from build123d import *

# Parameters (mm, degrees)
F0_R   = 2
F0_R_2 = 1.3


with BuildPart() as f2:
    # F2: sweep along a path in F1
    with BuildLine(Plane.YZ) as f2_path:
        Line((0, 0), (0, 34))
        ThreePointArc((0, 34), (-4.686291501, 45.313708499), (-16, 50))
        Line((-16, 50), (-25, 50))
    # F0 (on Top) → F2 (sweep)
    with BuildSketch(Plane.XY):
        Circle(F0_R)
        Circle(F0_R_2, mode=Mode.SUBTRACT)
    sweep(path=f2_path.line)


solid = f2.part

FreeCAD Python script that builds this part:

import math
import FreeCAD as App
import Part
import Sketcher

V = App.Vector

doc = App.newDocument("Part")
params = doc.addObject("Spreadsheet::Sheet", "Params")
for row, (alias, value) in enumerate([
    ("sketch1_diameter", "4 mm"),
    ("sketch1_diameter2", "2.6 mm"),
    ("sketch2_radius", "16 mm"),
    ("sketch2_width", "9 mm"),
    ("sketch2_height", "34 mm"),
], start=1):
    params.set(f"A{row}", alias)
    params.set(f"B{row}", "=" + value)
    params.setAlias(f"B{row}", alias)

body = doc.addObject("PartDesign::Body", "Body")

# Sketch on XY plane
sketch1 = body.newObject("Sketcher::SketchObject", "Sketch")
sketch1.AttachmentSupport = (doc.getObject("XY_Plane"), [""])
sketch1.MapMode = "FlatFace"
sketch1.addGeometry([
    Part.Circle(V(0, 0, 0), V(0, 0, 1), 2),
    Part.Circle(V(0, 0, 0), V(0, 0, 1), 1.3),
], False)
sketch1.addConstraint([
    Sketcher.Constraint("Coincident", 0, 3, -1, 1),
    Sketcher.Constraint("Coincident", 1, 3, -1, 1),
    Sketcher.Constraint("Diameter", 0, 4.0),
    Sketcher.Constraint("Diameter", 1, 2.6),
])
sketch1.setExpression("Constraints[2]", "Params.sketch1_diameter")
sketch1.setExpression("Constraints[3]", "Params.sketch1_diameter2")

# Sketch on YZ plane
sketch2 = body.newObject("Sketcher::SketchObject", "Sketch001")
sketch2.AttachmentSupport = (doc.getObject("YZ_Plane"), [""])
sketch2.MapMode = "FlatFace"
sketch2.addGeometry([
    Part.LineSegment(V(0, 0, 0), V(0, 34, 0)),
    Part.ArcOfCircle(Part.Circle(V(-16, 34, 0), V(0, 0, 1), 16), math.radians(0), math.radians(90)),
    Part.LineSegment(V(-16, 50, 0), V(-25, 50, 0)),
], False)
sketch2.addConstraint([
    Sketcher.Constraint("Tangent", 0, 2, 1, 1),
    Sketcher.Constraint("Tangent", 1, 2, 2, 1),
    Sketcher.Constraint("Vertical", 0),
    Sketcher.Constraint("Horizontal", 2),
    Sketcher.Constraint("Coincident", 0, 1, -1, 1),
    Sketcher.Constraint("Radius", 1, 16.0),
    Sketcher.Constraint("DistanceX", 2, 2, 2, 1, 9.0),
    Sketcher.Constraint("DistanceY", 0, 1, 0, 2, 34.0),
])
sketch2.setExpression("Constraints[5]", "Params.sketch2_radius")
sketch2.setExpression("Constraints[6]", "Params.sketch2_width")
sketch2.setExpression("Constraints[7]", "Params.sketch2_height")
doc.recompute()

additivepipe = body.newObject("PartDesign::AdditivePipe", "AdditivePipe")
additivepipe.Profile = sketch1
additivepipe.Spine = (sketch2, ["Edge1", "Edge2", "Edge3"])

doc.recompute()
